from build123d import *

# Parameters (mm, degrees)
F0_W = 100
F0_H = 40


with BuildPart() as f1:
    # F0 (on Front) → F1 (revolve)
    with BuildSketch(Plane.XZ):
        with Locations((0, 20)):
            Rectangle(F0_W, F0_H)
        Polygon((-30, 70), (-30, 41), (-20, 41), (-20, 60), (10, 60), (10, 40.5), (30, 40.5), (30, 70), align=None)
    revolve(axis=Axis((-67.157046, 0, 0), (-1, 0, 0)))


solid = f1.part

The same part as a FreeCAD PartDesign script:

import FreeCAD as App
import Part
import Sketcher
Q = App.Units.Quantity

doc = App.newDocument("Part")
body = doc.addObject("PartDesign::Body", "Body")
body.AllowCompound = True

sketch1 = body.newObject("Sketcher::SketchObject", "Sketch")
sketch1.AttachmentSupport = (doc.getObject("XZ_Plane"), [""])
sketch1.MapMode = "FlatFace"
sketch1.addGeometry([
    Part.LineSegment(App.Vector(-50, 40, 0), App.Vector(-50, 0, 0)),
    Part.LineSegment(App.Vector(-50, 0, 0), App.Vector(50, 0, 0)),
    Part.LineSegment(App.Vector(50, 0, 0), App.Vector(50, 40, 0)),
    Part.LineSegment(App.Vector(50, 40, 0), App.Vector(-50, 40, 0)),
    Part.LineSegment(App.Vector(-30, 70, 0), App.Vector(-30, 41, 0)),
    Part.LineSegment(App.Vector(-30, 41, 0), App.Vector(-20, 41, 0)),
    Part.LineSegment(App.Vector(-20, 41, 0), App.Vector(-20, 60, 0)),
    Part.LineSegment(App.Vector(-20, 60, 0), App.Vector(10, 60, 0)),
    Part.LineSegment(App.Vector(10, 60, 0), App.Vector(10, 40, 0)),
    Part.LineSegment(App.Vector(10, 40, 0), App.Vector(30, 40, 0)),
    Part.LineSegment(App.Vector(30, 40, 0), App.Vector(30, 70, 0)),
    Part.LineSegment(App.Vector(30, 70, 0), App.Vector(-30, 70, 0)),
], False)
sketch1.addConstraint([
    Sketcher.Constraint("Coincident", 0, 2, 1, 1),
    Sketcher.Constraint("Coincident", 1, 2, 2, 1),
    Sketcher.Constraint("Coincident", 2, 2, 3, 1),
    Sketcher.Constraint("Coincident", 3, 2, 0, 1),
    Sketcher.Constraint("Coincident", 4, 2, 5, 1),
    Sketcher.Constraint("Coincident", 5, 2, 6, 1),
    Sketcher.Constraint("Coincident", 6, 2, 7, 1),
    Sketcher.Constraint("Coincident", 7, 2, 8, 1),
    Sketcher.Constraint("Coincident", 8, 2, 9, 1),
    Sketcher.Constraint("Coincident", 9, 2, 10, 1),
    Sketcher.Constraint("Coincident", 10, 2, 11, 1),
    Sketcher.Constraint("Coincident", 11, 2, 4, 1),
    Sketcher.Constraint("Vertical", 0),
    Sketcher.Constraint("Horizontal", 1),
    Sketcher.Constraint("Vertical", 2),
    Sketcher.Constraint("Horizontal", 3),
    Sketcher.Constraint("Vertical", 4),
    Sketcher.Constraint("Horizontal", 5),
    Sketcher.Constraint("Vertical", 6),
    Sketcher.Constraint("Horizontal", 7),
    Sketcher.Constraint("Vertical", 8),
    Sketcher.Constraint("Horizontal", 9),
    Sketcher.Constraint("Vertical", 10),
    Sketcher.Constraint("Horizontal", 11),
    Sketcher.Constraint("Symmetric", 0, 2, 1, 2, -1, 1),
    Sketcher.Constraint("DistanceX", 1, 1, 1, 2, Q("100 mm")),
    Sketcher.Constraint("DistanceX", 5, 1, 5, 2, Q("10 mm")),
    Sketcher.Constraint("DistanceX", 7, 1, 7, 2, Q("30 mm")),
    Sketcher.Constraint("DistanceX", 9, 1, 9, 2, Q("20 mm")),
    Sketcher.Constraint("DistanceY", 0, 2, 0, 1, Q("40 mm")),
    Sketcher.Constraint("DistanceY", 4, 2, 4, 1, Q("29 mm")),
    Sketcher.Constraint("DistanceY", 6, 1, 6, 2, Q("19 mm")),
    Sketcher.Constraint("DistanceY", 8, 2, 8, 1, Q("19.5 mm")),
    Sketcher.Constraint("DistanceX", 4, 2, -1, 1, Q("30 mm")),
    Sketcher.Constraint("DistanceY", -1, 1, 4, 2, Q("41 mm")),
])
revolution = body.newObject("PartDesign::Revolution", "Revolution")
revolution.Profile = sketch1
revolution.ReferenceAxis = (sketch1, ["H_Axis"])
revolution.Angle = 360

doc.recompute()
